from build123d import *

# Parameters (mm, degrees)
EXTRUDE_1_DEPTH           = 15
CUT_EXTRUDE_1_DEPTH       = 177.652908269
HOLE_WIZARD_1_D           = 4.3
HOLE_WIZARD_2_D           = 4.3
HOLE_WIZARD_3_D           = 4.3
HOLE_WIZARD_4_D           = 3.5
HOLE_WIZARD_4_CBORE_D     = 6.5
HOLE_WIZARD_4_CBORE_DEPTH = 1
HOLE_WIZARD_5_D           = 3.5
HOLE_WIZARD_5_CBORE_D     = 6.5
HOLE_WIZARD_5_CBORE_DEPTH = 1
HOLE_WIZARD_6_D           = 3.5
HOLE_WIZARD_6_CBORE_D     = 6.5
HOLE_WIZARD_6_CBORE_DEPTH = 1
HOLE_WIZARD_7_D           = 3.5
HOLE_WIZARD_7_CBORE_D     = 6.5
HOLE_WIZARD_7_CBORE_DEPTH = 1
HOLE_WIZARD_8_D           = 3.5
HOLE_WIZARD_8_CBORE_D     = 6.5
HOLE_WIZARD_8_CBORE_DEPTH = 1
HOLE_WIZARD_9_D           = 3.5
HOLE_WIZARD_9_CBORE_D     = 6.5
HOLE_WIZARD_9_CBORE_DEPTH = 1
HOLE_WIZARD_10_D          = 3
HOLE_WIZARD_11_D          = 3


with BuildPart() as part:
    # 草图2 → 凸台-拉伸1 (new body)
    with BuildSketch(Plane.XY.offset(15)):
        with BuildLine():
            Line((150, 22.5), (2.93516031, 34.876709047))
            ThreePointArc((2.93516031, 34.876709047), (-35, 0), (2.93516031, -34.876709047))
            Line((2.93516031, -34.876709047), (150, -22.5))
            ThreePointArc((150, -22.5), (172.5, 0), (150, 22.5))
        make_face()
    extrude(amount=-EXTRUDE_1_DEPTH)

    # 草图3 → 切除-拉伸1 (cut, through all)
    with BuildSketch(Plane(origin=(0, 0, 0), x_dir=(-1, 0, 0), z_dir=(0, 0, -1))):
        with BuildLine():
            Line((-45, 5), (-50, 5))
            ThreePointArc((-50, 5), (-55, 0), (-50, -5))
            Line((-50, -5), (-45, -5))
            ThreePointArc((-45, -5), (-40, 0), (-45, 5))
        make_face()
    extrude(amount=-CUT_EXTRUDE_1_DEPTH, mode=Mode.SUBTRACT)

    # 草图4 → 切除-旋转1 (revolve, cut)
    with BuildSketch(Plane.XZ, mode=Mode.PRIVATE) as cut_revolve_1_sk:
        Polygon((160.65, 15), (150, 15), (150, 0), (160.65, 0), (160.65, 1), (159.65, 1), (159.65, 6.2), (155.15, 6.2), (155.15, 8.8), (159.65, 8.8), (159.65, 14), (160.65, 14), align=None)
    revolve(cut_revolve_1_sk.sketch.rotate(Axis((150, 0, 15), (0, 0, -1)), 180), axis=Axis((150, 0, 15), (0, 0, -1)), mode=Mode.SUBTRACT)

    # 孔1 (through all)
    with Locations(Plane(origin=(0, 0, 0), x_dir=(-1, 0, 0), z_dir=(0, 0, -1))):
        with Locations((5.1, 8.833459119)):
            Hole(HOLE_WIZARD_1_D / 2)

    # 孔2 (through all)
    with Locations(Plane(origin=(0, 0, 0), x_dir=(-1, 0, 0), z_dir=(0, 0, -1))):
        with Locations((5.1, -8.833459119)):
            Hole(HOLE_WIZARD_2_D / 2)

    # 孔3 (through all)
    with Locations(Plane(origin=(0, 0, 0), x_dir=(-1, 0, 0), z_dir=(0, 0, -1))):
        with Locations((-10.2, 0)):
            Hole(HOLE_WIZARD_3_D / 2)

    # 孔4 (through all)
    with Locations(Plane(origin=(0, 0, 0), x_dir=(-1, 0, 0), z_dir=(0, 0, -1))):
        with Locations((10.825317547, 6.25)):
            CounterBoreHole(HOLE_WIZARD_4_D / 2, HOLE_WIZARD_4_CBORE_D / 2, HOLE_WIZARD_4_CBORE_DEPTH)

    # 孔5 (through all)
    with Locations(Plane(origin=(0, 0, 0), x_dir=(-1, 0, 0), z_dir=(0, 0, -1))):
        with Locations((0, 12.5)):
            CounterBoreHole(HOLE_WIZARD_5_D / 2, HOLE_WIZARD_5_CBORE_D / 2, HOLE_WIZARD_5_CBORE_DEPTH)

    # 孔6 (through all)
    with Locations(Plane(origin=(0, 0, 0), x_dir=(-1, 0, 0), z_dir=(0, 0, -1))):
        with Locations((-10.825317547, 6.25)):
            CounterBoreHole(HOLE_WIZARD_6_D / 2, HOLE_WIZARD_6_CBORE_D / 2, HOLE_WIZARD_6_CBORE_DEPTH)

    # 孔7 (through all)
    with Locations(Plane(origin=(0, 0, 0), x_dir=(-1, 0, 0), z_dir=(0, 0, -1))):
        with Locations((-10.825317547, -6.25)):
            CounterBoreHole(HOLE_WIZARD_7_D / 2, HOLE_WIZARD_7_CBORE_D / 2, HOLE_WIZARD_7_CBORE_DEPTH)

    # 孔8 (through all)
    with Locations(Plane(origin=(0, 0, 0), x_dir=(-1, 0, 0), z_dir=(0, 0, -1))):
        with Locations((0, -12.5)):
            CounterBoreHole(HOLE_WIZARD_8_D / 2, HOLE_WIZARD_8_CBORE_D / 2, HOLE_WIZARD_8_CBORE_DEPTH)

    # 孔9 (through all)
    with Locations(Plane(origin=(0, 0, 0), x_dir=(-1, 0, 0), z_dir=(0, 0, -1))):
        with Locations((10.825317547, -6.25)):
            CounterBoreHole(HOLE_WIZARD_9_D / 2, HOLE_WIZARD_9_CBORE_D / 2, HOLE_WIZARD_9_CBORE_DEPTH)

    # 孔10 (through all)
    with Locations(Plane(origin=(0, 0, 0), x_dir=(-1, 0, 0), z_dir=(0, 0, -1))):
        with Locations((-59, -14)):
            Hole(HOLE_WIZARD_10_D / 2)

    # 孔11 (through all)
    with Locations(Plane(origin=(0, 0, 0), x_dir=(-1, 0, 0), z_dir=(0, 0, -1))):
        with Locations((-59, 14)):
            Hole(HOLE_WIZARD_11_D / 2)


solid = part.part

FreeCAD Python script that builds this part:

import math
import FreeCAD as App
import Part
import Sketcher
from FreeCAD import Vector

doc = App.newDocument("Part")
params = doc.addObject("Spreadsheet::Sheet", "Params")
for row, (alias, value) in enumerate([
    ("sketch1_radius", "35 mm"),
    ("sketch1_radius2", "22.5 mm"),
    ("pad1_length", "15 mm"),
    ("sketch2_radius", "5 mm"),
    ("sketch2_width", "5 mm"),
    ("sketch3_width", "1 mm"),
    ("sketch3_height", "15 mm"),
    ("sketch3_width2", "4.5 mm"),
    ("sketch3_height2", "5.2 mm"),
    ("sketch3_width3", "10.65 mm"),
    ("groove_angle", "360 deg"),
    ("sketch4_diameter", "4.3 mm"),
    ("hole_diameter", "4.3 mm"),
    ("sketch5_diameter", "4.3 mm"),
    ("hole2_diameter", "4.3 mm"),
    ("sketch6_diameter", "4.3 mm"),
    ("hole3_diameter", "4.3 mm"),
    ("sketch7_diameter", "3.5 mm"),
    ("hole4_diameter", "3.5 mm"),
    ("hole4_cbore_diameter", "6.5 mm"),
    ("hole4_cbore_depth", "1 mm"),
    ("sketch8_diameter", "3.5 mm"),
    ("hole5_diameter", "3.5 mm"),
    ("hole5_cbore_diameter", "6.5 mm"),
    ("hole5_cbore_depth", "1 mm"),
    ("sketch9_diameter", "3.5 mm"),
    ("hole6_diameter", "3.5 mm"),
    ("hole6_cbore_diameter", "6.5 mm"),
    ("hole6_cbore_depth", "1 mm"),
    ("sketch10_diameter", "3.5 mm"),
    ("hole7_diameter", "3.5 mm"),
    ("hole7_cbore_diameter", "6.5 mm"),
    ("hole7_cbore_depth", "1 mm"),
    ("sketch11_diameter", "3.5 mm"),
    ("hole8_diameter", "3.5 mm"),
    ("hole8_cbore_diameter", "6.5 mm"),
    ("hole8_cbore_depth", "1 mm"),
    ("sketch12_diameter", "3.5 mm"),
    ("hole9_diameter", "3.5 mm"),
    ("hole9_cbore_diameter", "6.5 mm"),
    ("hole9_cbore_depth", "1 mm"),
    ("sketch13_diameter", "3 mm"),
    ("hole10_diameter", "3 mm"),
    ("sketch14_diameter", "3 mm"),
    ("hole11_diameter", "3 mm"),
], start=1):
    params.set(f"A{row}", alias)
    params.set(f"B{row}", "=" + value)
    params.setAlias(f"B{row}", alias)

body = doc.addObject("PartDesign::Body", "Body")

# Sketch on XY plane
sketch1 = body.newObject("Sketcher::SketchObject", "Sketch")
sketch1.AttachmentSupport = (doc.getObject("XY_Plane"), [""])
sketch1.MapMode = "FlatFace"
sketch1.AttachmentOffset = App.Placement(Vector(0, 0, 15), App.Rotation())
sketch1.addGeometry(Part.LineSegment(Vector(150, 22, 0), Vector(3, 35, 0)), False)
sketch1.addGeometry(Part.ArcOfCircle(Part.Circle(Vector(0, 0, 0), Vector(0, 0, 1), 35), math.radians(85), math.radians(275)), False)
sketch1.addGeometry(Part.LineSegment(Vector(3, -35, 0), Vector(150, -22, 0)), False)
sketch1.addGeometry(Part.ArcOfCircle(Part.Circle(Vector(150, 0, 0), Vector(0, 0, 1), 22), math.radians(-90), math.radians(90)), False)
sketch1.addConstraint(Sketcher.Constraint("Tangent", 0, 2, 1, 1))
sketch1.addConstraint(Sketcher.Constraint("Tangent", 1, 2, 2, 1))
sketch1.addConstraint(Sketcher.Constraint("Coincident", 2, 2, 3, 1))
sketch1.addConstraint(Sketcher.Constraint("Coincident", 3, 2, 0, 1))
sketch1.addConstraint(Sketcher.Constraint("Coincident", 1, 3, -1, 1))
sketch1.addConstraint(Sketcher.Constraint("Symmetric", 2, 2, 3, 2, -1))
sketch1.addConstraint(Sketcher.Constraint("Vertical", 3, 3, 2, 2))
sketch1.addConstraint(Sketcher.Constraint("Radius", 1, 35.0))
sketch1.addConstraint(Sketcher.Constraint("Radius", 3, 22.5))
sketch1.addConstraint(Sketcher.Constraint("DistanceX", -1, 1, 3, 3, 150.0))
sketch1.setExpression("Constraints[7]", "Params.sketch1_radius")
sketch1.setExpression("Constraints[8]", "Params.sketch1_radius2")
pad1 = body.newObject("PartDesign::Pad", "Pad")
pad1.Profile = sketch1
pad1.setExpression("Length", "Params.pad1_length")
pad1.Reversed = True

# Sketch on XY plane
sketch2 = body.newObject("Sketcher::SketchObject", "Sketch001")
sketch2.AttachmentSupport = (doc.getObject("XY_Plane"), [""])
sketch2.MapMode = "FlatFace"
sketch2.addGeometry(Part.LineSegment(Vector(45, 5, 0), Vector(50, 5, 0)), False)
sketch2.addGeometry(Part.ArcOfCircle(Part.Circle(Vector(50, 0, 0), Vector(0, 0, 1), 5), math.radians(-90), math.radians(90)), False)
sketch2.addGeometry(Part.LineSegment(Vector(50, -5, 0), Vector(45, -5, 0)), False)
sketch2.addGeometry(Part.ArcOfCircle(Part.Circle(Vector(45, 0, 0), Vector(0, 0, 1), 5), math.radians(90), math.radians(270)), False)
sketch2.addConstraint(Sketcher.Constraint("Tangent", 0, 2, 1, 2))
sketch2.addConstraint(Sketcher.Constraint("Tangent", 1, 1, 2, 1))
sketch2.addConstraint(Sketcher.Constraint("Tangent", 2, 2, 3, 2))
sketch2.addConstraint(Sketcher.Constraint("Tangent", 3, 1, 0, 1))
sketch2.addConstraint(Sketcher.Constraint("Horizontal", 0))
sketch2.addConstraint(Sketcher.Constraint("Horizontal", 2))
sketch2.addConstraint(Sketcher.Constraint("PointOnObject", 1, 3, -1))
sketch2.addConstraint(Sketcher.Constraint("Radius", 1, 5.0))
sketch2.addConstraint(Sketcher.Constraint("DistanceX", 0, 1, 0, 2, 5.0))
sketch2.addConstraint(Sketcher.Constraint("DistanceX", -1, 1, 1, 3, 50.0))
sketch2.setExpression("Constraints[7]", "Params.sketch2_radius")
sketch2.setExpression("Constraints[8]", "Params.sketch2_width")
pocket1 = body.newObject("PartDesign::Pocket", "Pocket")
pocket1.Profile = sketch2
pocket1.Type = "ThroughAll"
pocket1.Reversed = True

# Sketch on XZ plane
sketch3 = body.newObject("Sketcher::SketchObject", "Sketch002")
sketch3.AttachmentSupport = (doc.getObject("XZ_Plane"), [""])
sketch3.MapMode = "FlatFace"
sketch3.addGeometry(Part.LineSegment(Vector(160.7, 15, 0), Vector(150, 15, 0)), False)
sketch3.addGeometry(Part.LineSegment(Vector(150, 15, 0), Vector(150, 0, 0)), False)
sketch3.addGeometry(Part.LineSegment(Vector(150, 0, 0), Vector(160.7, 0, 0)), False)
sketch3.addGeometry(Part.LineSegment(Vector(160.7, 0, 0), Vector(160.7, 1, 0)), False)
sketch3.addGeometry(Part.LineSegment(Vector(160.7, 1, 0), Vector(159.7, 1, 0)), False)
sketch3.addGeometry(Part.LineSegment(Vector(159.7, 1, 0), Vector(159.7, 6.2, 0)), False)
sketch3.addGeometry(Part.LineSegment(Vector(159.7, 6.2, 0), Vector(155.2, 6.2, 0)), False)
sketch3.addGeometry(Part.LineSegment(Vector(155.2, 6.2, 0), Vector(155.2, 8.8, 0)), False)
sketch3.addGeometry(Part.LineSegment(Vector(155.2, 8.8, 0), Vector(159.7, 8.8, 0)), False)
sketch3.addGeometry(Part.LineSegment(Vector(159.7, 8.8, 0), Vector(159.7, 14, 0)), False)
sketch3.addGeometry(Part.LineSegment(Vector(159.7, 14, 0), Vector(160.7, 14, 0)), False)
sketch3.addGeometry(Part.LineSegment(Vector(160.7, 14, 0), Vector(160.7, 15, 0)), False)
sketch3.addGeometry(Part.LineSegment(Vector(150, 15, 0), Vector(150, 0, 0)), True)  # axis
sketch3.addConstraint(Sketcher.Constraint("Coincident", 0, 2, 1, 1))
sketch3.addConstraint(Sketcher.Constraint("Coincident", 1, 2, 2, 1))
sketch3.addConstraint(Sketcher.Constraint("Coincident", 2, 2, 3, 1))
sketch3.addConstraint(Sketcher.Constraint("Coincident", 3, 2, 4, 1))
sketch3.addConstraint(Sketcher.Constraint("Coincident", 4, 2, 5, 1))
sketch3.addConstraint(Sketcher.Constraint("Coincident", 5, 2, 6, 1))
sketch3.addConstraint(Sketcher.Constraint("Coincident", 6, 2, 7, 1))
sketch3.addConstraint(Sketcher.Constraint("Coincident", 7, 2, 8, 1))
sketch3.addConstraint(Sketcher.Constraint("Coincident", 8, 2, 9, 1))
sketch3.addConstraint(Sketcher.Constraint("Coincident", 9, 2, 10, 1))
sketch3.addConstraint(Sketcher.Constraint("Coincident", 10, 2, 11, 1))
sketch3.addConstraint(Sketcher.Constraint("Coincident", 11, 2, 0, 1))
sketch3.addConstraint(Sketcher.Constraint("Horizontal", 0))
sketch3.addConstraint(Sketcher.Constraint("Vertical", 1))
sketch3.addConstraint(Sketcher.Constraint("Horizontal", 2))
sketch3.addConstraint(Sketcher.Constraint("Vertical", 3))
sketch3.addConstraint(Sketcher.Constraint("Horizontal", 4))
sketch3.addConstraint(Sketcher.Constraint("Vertical", 5))
sketch3.addConstraint(Sketcher.Constraint("Horizontal", 6))
sketch3.addConstraint(Sketcher.Constraint("Vertical", 7))
sketch3.addConstraint(Sketcher.Constraint("Horizontal", 8))
sketch3.addConstraint(Sketcher.Constraint("Vertical", 9))
sketch3.addConstraint(Sketcher.Constraint("Horizontal", 10))
sketch3.addConstraint(Sketcher.Constraint("Vertical", 11))
sketch3.addConstraint(Sketcher.Constraint("Vertical", 12))
sketch3.addConstraint(Sketcher.Constraint("Coincident", 12, 1, 0, 2))
sketch3.addConstraint(Sketcher.Constraint("PointOnObject", 1, 2, -1))
sketch3.addConstraint(Sketcher.Constraint("PointOnObject", 12, 2, -1))
sketch3.addConstraint(Sketcher.Constraint("Vertical", 5, 2, 8, 2))
sketch3.addConstraint(Sketcher.Constraint("Vertical", 3, 2, 10, 2))
sketch3.addConstraint(Sketcher.Constraint("Equal", 10, 3))
sketch3.addConstraint(Sketcher.Constraint("Equal", 5, 9))
sketch3.addConstraint(Sketcher.Constraint("Equal", 3, 11))
sketch3.addConstraint(Sketcher.Constraint("DistanceX", 4, 2, 4, 1, 1.0))
sketch3.addConstraint(Sketcher.Constraint("DistanceY", 1, 2, 1, 1, 15.0))
sketch3.addConstraint(Sketcher.Constraint("DistanceX", 6, 2, 6, 1, 4.5))
sketch3.addConstraint(Sketcher.Constraint("DistanceY", 5, 1, 5, 2, 5.2))
sketch3.addConstraint(Sketcher.Constraint("DistanceX", -1, 1, 0, 2, 150.0))
sketch3.addConstraint(Sketcher.Constraint("DistanceX", 0, 2, 0, 1, 10.65))
sketch3.setExpression("Constraints[33]", "Params.sketch3_width")
sketch3.setExpression("Constraints[34]", "Params.sketch3_height")
sketch3.setExpression("Constraints[35]", "Params.sketch3_width2")
sketch3.setExpression("Constraints[36]", "Params.sketch3_height2")
sketch3.setExpression("Constraints[38]", "Params.sketch3_width3")
groove = body.newObject("PartDesign::Groove", "Groove")
groove.Profile = sketch3
groove.ReferenceAxis = (sketch3, ["Axis0"])
groove.setExpression("Angle", "Params.groove_angle")

# Sketch on XY plane
sketch4 = body.newObject("Sketcher::SketchObject", "Sketch003")
sketch4.AttachmentSupport = (doc.getObject("XY_Plane"), [""])
sketch4.MapMode = "FlatFace"
sketch4.addGeometry(Part.Circle(Vector(-5.1, 8.8, 0), Vector(0, 0, 1), 2.1), False)
sketch4.addConstraint(Sketcher.Constraint("Diameter", 0, 4.3))
sketch4.addConstraint(Sketcher.Constraint("DistanceX", 0, 3, -1, 1, 5.1))
sketch4.addConstraint(Sketcher.Constraint("DistanceY", -1, 1, 0, 3, 8.833459))
sketch4.setExpression("Constraints[0]", "Params.sketch4_diameter")
doc.recompute()
hole = body.newObject("PartDesign::Hole", "Hole")
hole.Profile = sketch4
hole.ThreadType = "None"
hole.setExpression("Diameter", "Params.hole_diameter")
hole.DepthType = "ThroughAll"
hole.Reversed = True

# Sketch on XY plane
sketch5 = body.newObject("Sketcher::SketchObject", "Sketch004")
sketch5.AttachmentSupport = (doc.getObject("XY_Plane"), [""])
sketch5.MapMode = "FlatFace"
sketch5.addGeometry(Part.Circle(Vector(-5.1, -8.8, 0), Vector(0, 0, 1), 2.1), False)
sketch5.addConstraint(Sketcher.Constraint("Diameter", 0, 4.3))
sketch5.addConstraint(Sketcher.Constraint("DistanceX", 0, 3, -1, 1, 5.1))
sketch5.addConstraint(Sketcher.Constraint("DistanceY", 0, 3, -1, 1, 8.833459))
sketch5.setExpression("Constraints[0]", "Params.sketch5_diameter")
doc.recompute()
hole2 = body.newObject("PartDesign::Hole", "Hole001")
hole2.Profile = sketch5
hole2.ThreadType = "None"
hole2.setExpression("Diameter", "Params.hole2_diameter")
hole2.DepthType = "ThroughAll"
hole2.Reversed = True

# Sketch on XY plane
sketch6 = body.newObject("Sketcher::SketchObject", "Sketch005")
sketch6.AttachmentSupport = (doc.getObject("XY_Plane"), [""])
sketch6.MapMode = "FlatFace"
sketch6.addGeometry(Part.Circle(Vector(10.2, 0, 0), Vector(0, 0, 1), 2.1), False)
sketch6.addConstraint(Sketcher.Constraint("PointOnObject", 0, 3, -1))
sketch6.addConstraint(Sketcher.Constraint("Diameter", 0, 4.3))
sketch6.addConstraint(Sketcher.Constraint("DistanceX", -1, 1, 0, 3, 10.2))
sketch6.setExpression("Constraints[1]", "Params.sketch6_diameter")
doc.recompute()
hole3 = body.newObject("PartDesign::Hole", "Hole002")
hole3.Profile = sketch6
hole3.ThreadType = "None"
hole3.setExpression("Diameter", "Params.hole3_diameter")
hole3.DepthType = "ThroughAll"
hole3.Reversed = True

# Sketch on XY plane
sketch7 = body.newObject("Sketcher::SketchObject", "Sketch006")
sketch7.AttachmentSupport = (doc.getObject("XY_Plane"), [""])
sketch7.MapMode = "FlatFace"
sketch7.addGeometry(Part.Circle(Vector(-10.8, 6.2, 0), Vector(0, 0, 1), 1.8), False)
sketch7.addConstraint(Sketcher.Constraint("Diameter", 0, 3.5))
sketch7.addConstraint(Sketcher.Constraint("DistanceY", -1, 1, 0, 3, 6.25))
sketch7.addConstraint(Sketcher.Constraint("DistanceX", 0, 3, -1, 1, 10.825318))
sketch7.setExpression("Constraints[0]", "Params.sketch7_diameter")
doc.recompute()
hole4 = body.newObject("PartDesign::Hole", "Hole003")
hole4.Profile = sketch7
hole4.ThreadType = "None"
hole4.setExpression("Diameter", "Params.hole4_diameter")
hole4.DepthType = "ThroughAll"
hole4.HoleCutType = "Counterbore"
hole4.setExpression("HoleCutDiameter", "Params.hole4_cbore_diameter")
hole4.setExpression("HoleCutDepth", "Params.hole4_cbore_depth")
hole4.Reversed = True

# Sketch on XY plane
sketch8 = body.newObject("Sketcher::SketchObject", "Sketch007")
sketch8.AttachmentSupport = (doc.getObject("XY_Plane"), [""])
sketch8.MapMode = "FlatFace"
sketch8.addGeometry(Part.Circle(Vector(0, 12.5, 0), Vector(0, 0, 1), 1.8), False)
sketch8.addConstraint(Sketcher.Constraint("PointOnObject", 0, 3, -2))
sketch8.addConstraint(Sketcher.Constraint("Diameter", 0, 3.5))
sketch8.addConstraint(Sketcher.Constraint("DistanceY", -1, 1, 0, 3, 12.5))
sketch8.setExpression("Constraints[1]", "Params.sketch8_diameter")
doc.recompute()
hole5 = body.newObject("PartDesign::Hole", "Hole004")
hole5.Profile = sketch8
hole5.ThreadType = "None"
hole5.setExpression("Diameter", "Params.hole5_diameter")
hole5.DepthType = "ThroughAll"
hole5.HoleCutType = "Counterbore"
hole5.setExpression("HoleCutDiameter", "Params.hole5_cbore_diameter")
hole5.setExpression("HoleCutDepth", "Params.hole5_cbore_depth")
hole5.Reversed = True

# Sketch on XY plane
sketch9 = body.newObject("Sketcher::SketchObject", "Sketch008")
sketch9.AttachmentSupport = (doc.getObject("XY_Plane"), [""])
sketch9.MapMode = "FlatFace"
sketch9.addGeometry(Part.Circle(Vector(10.8, 6.2, 0), Vector(0, 0, 1), 1.8), False)
sketch9.addConstraint(Sketcher.Constraint("Diameter", 0, 3.5))
sketch9.addConstraint(Sketcher.Constraint("DistanceY", -1, 1, 0, 3, 6.25))
sketch9.addConstraint(Sketcher.Constraint("DistanceX", -1, 1, 0, 3, 10.825318))
sketch9.setExpression("Constraints[0]", "Params.sketch9_diameter")
doc.recompute()
hole6 = body.newObject("PartDesign::Hole", "Hole005")
hole6.Profile = sketch9
hole6.ThreadType = "None"
hole6.setExpression("Diameter", "Params.hole6_diameter")
hole6.DepthType = "ThroughAll"
hole6.HoleCutType = "Counterbore"
hole6.setExpression("HoleCutDiameter", "Params.hole6_cbore_diameter")
hole6.setExpression("HoleCutDepth", "Params.hole6_cbore_depth")
hole6.Reversed = True

# Sketch on XY plane
sketch10 = body.newObject("Sketcher::SketchObject", "Sketch009")
sketch10.AttachmentSupport = (doc.getObject("XY_Plane"), [""])
sketch10.MapMode = "FlatFace"
sketch10.addGeometry(Part.Circle(Vector(10.8, -6.2, 0), Vector(0, 0, 1), 1.8), False)
sketch10.addConstraint(Sketcher.Constraint("Diameter", 0, 3.5))
sketch10.addConstraint(Sketcher.Constraint("DistanceY", 0, 3, -1, 1, 6.25))
sketch10.addConstraint(Sketcher.Constraint("DistanceX", -1, 1, 0, 3, 10.825318))
sketch10.setExpression("Constraints[0]", "Params.sketch10_diameter")
doc.recompute()
hole7 = body.newObject("PartDesign::Hole", "Hole006")
hole7.Profile = sketch10
hole7.ThreadType = "None"
hole7.setExpression("Diameter", "Params.hole7_diameter")
hole7.DepthType = "ThroughAll"
hole7.HoleCutType = "Counterbore"
hole7.setExpression("HoleCutDiameter", "Params.hole7_cbore_diameter")
hole7.setExpression("HoleCutDepth", "Params.hole7_cbore_depth")
hole7.Reversed = True

# Sketch on XY plane
sketch11 = body.newObject("Sketcher::SketchObject", "Sketch010")
sketch11.AttachmentSupport = (doc.getObject("XY_Plane"), [""])
sketch11.MapMode = "FlatFace"
sketch11.addGeometry(Part.Circle(Vector(0, -12.5, 0), Vector(0, 0, 1), 1.8), False)
sketch11.addConstraint(Sketcher.Constraint("PointOnObject", 0, 3, -2))
sketch11.addConstraint(Sketcher.Constraint("Diameter", 0, 3.5))
sketch11.addConstraint(Sketcher.Constraint("DistanceY", 0, 3, -1, 1, 12.5))
sketch11.setExpression("Constraints[1]", "Params.sketch11_diameter")
doc.recompute()
hole8 = body.newObject("PartDesign::Hole", "Hole007")
hole8.Profile = sketch11
hole8.ThreadType = "None"
hole8.setExpression("Diameter", "Params.hole8_diameter")
hole8.DepthType = "ThroughAll"
hole8.HoleCutType = "Counterbore"
hole8.setExpression("HoleCutDiameter", "Params.hole8_cbore_diameter")
hole8.setExpression("HoleCutDepth", "Params.hole8_cbore_depth")
hole8.Reversed = True

# Sketch on XY plane
sketch12 = body.newObject("Sketcher::SketchObject", "Sketch011")
sketch12.AttachmentSupport = (doc.getObject("XY_Plane"), [""])
sketch12.MapMode = "FlatFace"
sketch12.addGeometry(Part.Circle(Vector(-10.8, -6.2, 0), Vector(0, 0, 1), 1.8), False)
sketch12.addConstraint(Sketcher.Constraint("Diameter", 0, 3.5))
sketch12.addConstraint(Sketcher.Constraint("DistanceY", 0, 3, -1, 1, 6.25))
sketch12.addConstraint(Sketcher.Constraint("DistanceX", 0, 3, -1, 1, 10.825318))
sketch12.setExpression("Constraints[0]", "Params.sketch12_diameter")
doc.recompute()
hole9 = body.newObject("PartDesign::Hole", "Hole008")
hole9.Profile = sketch12
hole9.ThreadType = "None"
hole9.setExpression("Diameter", "Params.hole9_diameter")
hole9.DepthType = "ThroughAll"
hole9.HoleCutType = "Counterbore"
hole9.setExpression("HoleCutDiameter", "Params.hole9_cbore_diameter")
hole9.setExpression("HoleCutDepth", "Params.hole9_cbore_depth")
hole9.Reversed = True

# Sketch on XY plane
sketch13 = body.newObject("Sketcher::SketchObject", "Sketch012")
sketch13.AttachmentSupport = (doc.getObject("XY_Plane"), [""])
sketch13.MapMode = "FlatFace"
sketch13.addGeometry(Part.Circle(Vector(59, -14, 0), Vector(0, 0, 1), 1.5), False)
sketch13.addConstraint(Sketcher.Constraint("Diameter", 0, 3.0))
sketch13.addConstraint(Sketcher.Constraint("DistanceX", -1, 1, 0, 3, 59.0))
sketch13.addConstraint(Sketcher.Constraint("DistanceY", 0, 3, -1, 1, 14.0))
sketch13.setExpression("Constraints[0]", "Params.sketch13_diameter")
doc.recompute()
hole10 = body.newObject("PartDesign::Hole", "Hole009")
hole10.Profile = sketch13
hole10.ThreadType = "None"
hole10.setExpression("Diameter", "Params.hole10_diameter")
hole10.DepthType = "ThroughAll"
hole10.Reversed = True

# Sketch on XY plane
sketch14 = body.newObject("Sketcher::SketchObject", "Sketch013")
sketch14.AttachmentSupport = (doc.getObject("XY_Plane"), [""])
sketch14.MapMode = "FlatFace"
sketch14.addGeometry(Part.Circle(Vector(59, 14, 0), Vector(0, 0, 1), 1.5), False)
sketch14.addConstraint(Sketcher.Constraint("Diameter", 0, 3.0))
sketch14.addConstraint(Sketcher.Constraint("DistanceX", -1, 1, 0, 3, 59.0))
sketch14.addConstraint(Sketcher.Constraint("DistanceY", -1, 1, 0, 3, 14.0))
sketch14.setExpression("Constraints[0]", "Params.sketch14_diameter")
doc.recompute()
hole11 = body.newObject("PartDesign::Hole", "Hole010")
hole11.Profile = sketch14
hole11.ThreadType = "None"
hole11.setExpression("Diameter", "Params.hole11_diameter")
hole11.DepthType = "ThroughAll"
hole11.Reversed = True

doc.recompute()
